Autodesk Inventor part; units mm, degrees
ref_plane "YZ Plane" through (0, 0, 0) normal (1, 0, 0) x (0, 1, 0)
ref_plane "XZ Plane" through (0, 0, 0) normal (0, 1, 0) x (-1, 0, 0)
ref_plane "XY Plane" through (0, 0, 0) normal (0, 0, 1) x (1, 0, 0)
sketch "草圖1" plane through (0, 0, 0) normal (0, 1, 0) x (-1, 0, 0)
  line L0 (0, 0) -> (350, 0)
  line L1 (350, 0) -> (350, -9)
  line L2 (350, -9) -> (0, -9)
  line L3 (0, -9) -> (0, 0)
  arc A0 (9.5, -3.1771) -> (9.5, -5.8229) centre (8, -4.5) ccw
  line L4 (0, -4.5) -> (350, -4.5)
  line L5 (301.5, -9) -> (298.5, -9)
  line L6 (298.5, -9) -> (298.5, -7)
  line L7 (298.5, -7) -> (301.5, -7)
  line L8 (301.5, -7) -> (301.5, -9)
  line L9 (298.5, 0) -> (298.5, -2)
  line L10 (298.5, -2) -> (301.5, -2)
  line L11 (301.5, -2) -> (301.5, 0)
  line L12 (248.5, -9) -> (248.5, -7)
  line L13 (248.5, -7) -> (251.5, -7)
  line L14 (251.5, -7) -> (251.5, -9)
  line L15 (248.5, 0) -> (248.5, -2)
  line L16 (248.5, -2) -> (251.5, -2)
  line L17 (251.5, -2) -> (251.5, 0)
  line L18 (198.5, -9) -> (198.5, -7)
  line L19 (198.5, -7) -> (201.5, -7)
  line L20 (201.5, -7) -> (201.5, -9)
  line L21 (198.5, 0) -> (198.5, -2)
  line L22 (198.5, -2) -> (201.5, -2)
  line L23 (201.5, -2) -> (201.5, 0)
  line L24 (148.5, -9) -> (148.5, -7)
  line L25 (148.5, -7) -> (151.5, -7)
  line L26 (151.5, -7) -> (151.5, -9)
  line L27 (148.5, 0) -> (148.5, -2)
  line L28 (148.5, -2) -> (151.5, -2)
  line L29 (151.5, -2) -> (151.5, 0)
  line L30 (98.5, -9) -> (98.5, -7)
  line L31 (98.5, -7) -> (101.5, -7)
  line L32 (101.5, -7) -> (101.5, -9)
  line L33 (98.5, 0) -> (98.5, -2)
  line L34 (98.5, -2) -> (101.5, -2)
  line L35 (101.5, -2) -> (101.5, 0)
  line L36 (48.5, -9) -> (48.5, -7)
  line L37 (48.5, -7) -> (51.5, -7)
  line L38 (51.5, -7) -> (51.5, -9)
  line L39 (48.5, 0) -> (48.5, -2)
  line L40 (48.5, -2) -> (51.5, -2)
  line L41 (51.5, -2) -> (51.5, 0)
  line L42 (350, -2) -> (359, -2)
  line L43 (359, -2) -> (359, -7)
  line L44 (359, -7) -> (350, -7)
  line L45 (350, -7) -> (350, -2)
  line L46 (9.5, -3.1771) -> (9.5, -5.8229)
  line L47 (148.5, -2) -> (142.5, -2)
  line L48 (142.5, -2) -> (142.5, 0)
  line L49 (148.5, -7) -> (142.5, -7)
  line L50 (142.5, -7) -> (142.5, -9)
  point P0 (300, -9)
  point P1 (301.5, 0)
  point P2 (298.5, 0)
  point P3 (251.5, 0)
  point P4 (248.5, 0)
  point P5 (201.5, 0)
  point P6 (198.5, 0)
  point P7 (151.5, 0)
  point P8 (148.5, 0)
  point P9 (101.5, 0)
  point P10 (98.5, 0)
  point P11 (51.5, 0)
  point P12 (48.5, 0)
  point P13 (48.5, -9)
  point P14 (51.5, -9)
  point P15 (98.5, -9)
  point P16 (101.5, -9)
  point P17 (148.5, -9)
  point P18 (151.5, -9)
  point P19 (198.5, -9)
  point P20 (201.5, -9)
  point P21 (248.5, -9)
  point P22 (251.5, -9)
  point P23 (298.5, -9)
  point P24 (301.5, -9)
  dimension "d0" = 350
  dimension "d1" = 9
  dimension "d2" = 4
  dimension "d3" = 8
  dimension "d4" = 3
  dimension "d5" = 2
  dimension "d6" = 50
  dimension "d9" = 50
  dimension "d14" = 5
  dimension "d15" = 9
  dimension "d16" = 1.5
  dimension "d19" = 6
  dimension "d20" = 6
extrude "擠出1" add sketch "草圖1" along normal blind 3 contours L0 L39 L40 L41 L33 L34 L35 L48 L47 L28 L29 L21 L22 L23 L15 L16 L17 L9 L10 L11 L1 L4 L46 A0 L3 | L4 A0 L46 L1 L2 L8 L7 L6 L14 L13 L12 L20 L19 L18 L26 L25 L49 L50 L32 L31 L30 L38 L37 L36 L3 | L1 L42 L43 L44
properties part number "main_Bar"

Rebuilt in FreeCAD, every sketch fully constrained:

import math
import FreeCAD as App
import Part
import Sketcher


def add_polygon(sketch, points):
    """Adds a closed chain of lines whose ends are joined by coincident constraints."""
    first, n = sketch.GeometryCount, len(points)
    for a, b in zip(points, points[1:] + points[:1]):
        sketch.addGeometry(Part.LineSegment(App.Vector(*a, 0), App.Vector(*b, 0)), False)
    for i in range(n):
        sketch.addConstraint(Sketcher.Constraint("Coincident", first + i, 2, first + (i + 1) % n, 1))

doc = App.newDocument("Part")
body = doc.addObject("PartDesign::Body", "Body")

# Sketch on XZ plane
sketch1 = doc.addObject("Sketcher::SketchObject", "Sketch")
body.addObject(sketch1)
sketch1.AttachmentSupport = (doc.XZ_Plane, [""])
sketch1.MapMode = "FlatFace"
add_polygon(sketch1, [(-48.5, 0), (0, 0), (0, -9), (-48.5, -9), (-48.5, -7), (-51.5, -7), (-51.5, -9), (-98.5, -9), (-98.5, -7), (-101.5, -7), (-101.5, -9), (-142.5, -9), (-142.5, -7), (-151.5, -7), (-151.5, -9), (-198.5, -9), (-198.5, -7), (-201.5, -7), (-201.5, -9), (-248.5, -9), (-248.5, -7), (-251.5, -7), (-251.5, -9), (-298.5, -9), (-298.5, -7), (-301.5, -7), (-301.5, -9), (-350, -9), (-350, -7), (-359, -7), (-359, -2), (-350, -2), (-350, 0), (-301.5, 0), (-301.5, -2), (-298.5, -2), (-298.5, 0), (-251.5, 0), (-251.5, -2), (-248.5, -2), (-248.5, 0), (-201.5, 0), (-201.5, -2), (-198.5, -2), (-198.5, 0), (-151.5, 0), (-151.5, -2), (-142.5, -2), (-142.5, 0), (-101.5, 0), (-101.5, -2), (-98.5, -2), (-98.5, 0), (-51.5, 0), (-51.5, -2), (-48.5, -2)])  # lines 0-55
sketch1.addGeometry(Part.LineSegment(App.Vector(-9.5, -3.1771, 0), App.Vector(-9.5, -5.8229, 0)), False)  # 56
sketch1.addGeometry(Part.ArcOfCircle(Part.Circle(App.Vector(-8, -4.5, 0), App.Vector(0, 0, 1), 2.000016), math.radians(-138.589855), math.radians(138.589855)), False)  # 57
sketch1.addConstraint(Sketcher.Constraint("Coincident", 56, 1, 57, 2))
sketch1.addConstraint(Sketcher.Constraint("Coincident", 57, 1, 56, 2))
sketch1.addConstraint(Sketcher.Constraint("Horizontal", 0))
sketch1.addConstraint(Sketcher.Constraint("Vertical", 1))
sketch1.addConstraint(Sketcher.Constraint("Horizontal", 2))
sketch1.addConstraint(Sketcher.Constraint("Vertical", 3))
sketch1.addConstraint(Sketcher.Constraint("Horizontal", 4))
sketch1.addConstraint(Sketcher.Constraint("Vertical", 5))
sketch1.addConstraint(Sketcher.Constraint("Horizontal", 6))
sketch1.addConstraint(Sketcher.Constraint("Vertical", 7))
sketch1.addConstraint(Sketcher.Constraint("Horizontal", 8))
sketch1.addConstraint(Sketcher.Constraint("Vertical", 9))
sketch1.addConstraint(Sketcher.Constraint("Horizontal", 10))
sketch1.addConstraint(Sketcher.Constraint("Vertical", 11))
sketch1.addConstraint(Sketcher.Constraint("Horizontal", 12))
sketch1.addConstraint(Sketcher.Constraint("Vertical", 13))
sketch1.addConstraint(Sketcher.Constraint("Horizontal", 14))
sketch1.addConstraint(Sketcher.Constraint("Vertical", 15))
sketch1.addConstraint(Sketcher.Constraint("Horizontal", 16))
sketch1.addConstraint(Sketcher.Constraint("Vertical", 17))
sketch1.addConstraint(Sketcher.Constraint("Horizontal", 18))
sketch1.addConstraint(Sketcher.Constraint("Vertical", 19))
sketch1.addConstraint(Sketcher.Constraint("Horizontal", 20))
sketch1.addConstraint(Sketcher.Constraint("Vertical", 21))
sketch1.addConstraint(Sketcher.Constraint("Horizontal", 22))
sketch1.addConstraint(Sketcher.Constraint("Vertical", 23))
sketch1.addConstraint(Sketcher.Constraint("Horizontal", 24))
sketch1.addConstraint(Sketcher.Constraint("Vertical", 25))
sketch1.addConstraint(Sketcher.Constraint("Horizontal", 26))
sketch1.addConstraint(Sketcher.Constraint("Vertical", 27))
sketch1.addConstraint(Sketcher.Constraint("Horizontal", 28))
sketch1.addConstraint(Sketcher.Constraint("Vertical", 29))
sketch1.addConstraint(Sketcher.Constraint("Horizontal", 30))
sketch1.addConstraint(Sketcher.Constraint("Vertical", 31))
sketch1.addConstraint(Sketcher.Constraint("Horizontal", 32))
sketch1.addConstraint(Sketcher.Constraint("Vertical", 33))
sketch1.addConstraint(Sketcher.Constraint("Horizontal", 34))
sketch1.addConstraint(Sketcher.Constraint("Vertical", 35))
sketch1.addConstraint(Sketcher.Constraint("Horizontal", 36))
sketch1.addConstraint(Sketcher.Constraint("Vertical", 37))
sketch1.addConstraint(Sketcher.Constraint("Horizontal", 38))
sketch1.addConstraint(Sketcher.Constraint("Vertical", 39))
sketch1.addConstraint(Sketcher.Constraint("Horizontal", 40))
sketch1.addConstraint(Sketcher.Constraint("Vertical", 41))
sketch1.addConstraint(Sketcher.Constraint("Horizontal", 42))
sketch1.addConstraint(Sketcher.Constraint("Vertical", 43))
sketch1.addConstraint(Sketcher.Constraint("Horizontal", 44))
sketch1.addConstraint(Sketcher.Constraint("Vertical", 45))
sketch1.addConstraint(Sketcher.Constraint("Horizontal", 46))
sketch1.addConstraint(Sketcher.Constraint("Vertical", 47))
sketch1.addConstraint(Sketcher.Constraint("Horizontal", 48))
sketch1.addConstraint(Sketcher.Constraint("Vertical", 49))
sketch1.addConstraint(Sketcher.Constraint("Horizontal", 50))
sketch1.addConstraint(Sketcher.Constraint("Vertical", 51))
sketch1.addConstraint(Sketcher.Constraint("Horizontal", 52))
sketch1.addConstraint(Sketcher.Constraint("Vertical", 53))
sketch1.addConstraint(Sketcher.Constraint("Horizontal", 54))
sketch1.addConstraint(Sketcher.Constraint("Vertical", 55))
sketch1.addConstraint(Sketcher.Constraint("Vertical", 56))
sketch1.addConstraint(Sketcher.Constraint("Coincident", 0, 2, -1, 1))
sketch1.addConstraint(Sketcher.Constraint("PointOnObject", 31, 2, -1))
sketch1.addConstraint(Sketcher.Constraint("PointOnObject", 35, 2, -1))
sketch1.addConstraint(Sketcher.Constraint("PointOnObject", 39, 2, -1))
sketch1.addConstraint(Sketcher.Constraint("PointOnObject", 43, 2, -1))
sketch1.addConstraint(Sketcher.Constraint("PointOnObject", 47, 2, -1))
sketch1.addConstraint(Sketcher.Constraint("PointOnObject", 51, 2, -1))
sketch1.addConstraint(Sketcher.Constraint("Horizontal", 2, 2, 5, 2))
sketch1.addConstraint(Sketcher.Constraint("Horizontal", 4, 2, 7, 2))
sketch1.addConstraint(Sketcher.Constraint("Horizontal", 6, 2, 9, 2))
sketch1.addConstraint(Sketcher.Constraint("Horizontal", 8, 2, 11, 2))
sketch1.addConstraint(Sketcher.Constraint("Horizontal", 10, 2, 13, 2))
sketch1.addConstraint(Sketcher.Constraint("Horizontal", 12, 2, 15, 2))
sketch1.addConstraint(Sketcher.Constraint("Horizontal", 14, 2, 17, 2))
sketch1.addConstraint(Sketcher.Constraint("Horizontal", 16, 2, 19, 2))
sketch1.addConstraint(Sketcher.Constraint("Horizontal", 18, 2, 21, 2))
sketch1.addConstraint(Sketcher.Constraint("Horizontal", 20, 2, 23, 2))
sketch1.addConstraint(Sketcher.Constraint("Horizontal", 22, 2, 25, 2))
sketch1.addConstraint(Sketcher.Constraint("Horizontal", 24, 2, 27, 2))
sketch1.addConstraint(Sketcher.Constraint("Horizontal", 30, 2, 33, 2))
sketch1.addConstraint(Sketcher.Constraint("Horizontal", 34, 2, 37, 2))
sketch1.addConstraint(Sketcher.Constraint("Horizontal", 38, 2, 41, 2))
sketch1.addConstraint(Sketcher.Constraint("Horizontal", 42, 2, 45, 2))
sketch1.addConstraint(Sketcher.Constraint("Horizontal", 46, 2, 49, 2))
sketch1.addConstraint(Sketcher.Constraint("Horizontal", 50, 2, 53, 2))
sketch1.addConstraint(Sketcher.Constraint("Vertical", 27, 2, 30, 2))
sketch1.addConstraint(Sketcher.Constraint("Vertical", 25, 2, 32, 2))
sketch1.addConstraint(Sketcher.Constraint("Vertical", 23, 2, 34, 2))
sketch1.addConstraint(Sketcher.Constraint("Vertical", 21, 2, 36, 2))
sketch1.addConstraint(Sketcher.Constraint("Vertical", 19, 2, 38, 2))
sketch1.addConstraint(Sketcher.Constraint("Vertical", 17, 2, 40, 2))
sketch1.addConstraint(Sketcher.Constraint("Vertical", 15, 2, 42, 2))
sketch1.addConstraint(Sketcher.Constraint("Vertical", 13, 2, 44, 2))
sketch1.addConstraint(Sketcher.Constraint("Vertical", 11, 2, 46, 2))
sketch1.addConstraint(Sketcher.Constraint("Vertical", 9, 2, 48, 2))
sketch1.addConstraint(Sketcher.Constraint("Vertical", 7, 2, 50, 2))
sketch1.addConstraint(Sketcher.Constraint("Vertical", 5, 2, 52, 2))
sketch1.addConstraint(Sketcher.Constraint("Vertical", 3, 2, 54, 2))
sketch1.addConstraint(Sketcher.Constraint("Equal", 4, 8))
sketch1.addConstraint(Sketcher.Constraint("Equal", 6, 14))
sketch1.addConstraint(Sketcher.Constraint("Equal", 8, 16))
sketch1.addConstraint(Sketcher.Constraint("Equal", 14, 18))
sketch1.addConstraint(Sketcher.Constraint("Equal", 16, 20))
sketch1.addConstraint(Sketcher.Constraint("Equal", 18, 22))
sketch1.addConstraint(Sketcher.Constraint("Equal", 20, 24))
sketch1.addConstraint(Sketcher.Constraint("Equal", 2, 26))
sketch1.addConstraint(Sketcher.Constraint("Equal", 12, 28))
sketch1.addConstraint(Sketcher.Constraint("Equal", 46, 1))
sketch1.addConstraint(Sketcher.Constraint("Equal", 27, 31))
sketch1.addConstraint(Sketcher.Constraint("Radius", 57, 2.0))
sketch1.addConstraint(Sketcher.Constraint("DistanceX", 4, 2, 4, 1, 3.0))
sketch1.addConstraint(Sketcher.Constraint("DistanceX", 12, 2, 12, 1, 9.0))
sketch1.addConstraint(Sketcher.Constraint("DistanceY", 3, 1, 3, 2, 2.0))
sketch1.addConstraint(Sketcher.Constraint("DistanceX", 57, 3, -1, 1, 8.0))
sketch1.addConstraint(Sketcher.Constraint("DistanceX", 26, 2, -1, 1, 350.0))
sketch1.addConstraint(Sketcher.Constraint("DistanceX", 6, 2, 2, 2, 50.0))
sketch1.addConstraint(Sketcher.Constraint("DistanceX", 12, 2, 8, 2, 50.0))
sketch1.addConstraint(Sketcher.Constraint("DistanceX", 56, 1, 57, 3, 1.5))
sketch1.addConstraint(Sketcher.Constraint("DistanceY", 57, 3, -1, 1, 4.5))
pad1 = doc.addObject("PartDesign::Pad", "Pad")
body.addObject(pad1)
pad1.Profile = sketch1
pad1.Length = 3
pad1.Reversed = True

doc.recompute()
